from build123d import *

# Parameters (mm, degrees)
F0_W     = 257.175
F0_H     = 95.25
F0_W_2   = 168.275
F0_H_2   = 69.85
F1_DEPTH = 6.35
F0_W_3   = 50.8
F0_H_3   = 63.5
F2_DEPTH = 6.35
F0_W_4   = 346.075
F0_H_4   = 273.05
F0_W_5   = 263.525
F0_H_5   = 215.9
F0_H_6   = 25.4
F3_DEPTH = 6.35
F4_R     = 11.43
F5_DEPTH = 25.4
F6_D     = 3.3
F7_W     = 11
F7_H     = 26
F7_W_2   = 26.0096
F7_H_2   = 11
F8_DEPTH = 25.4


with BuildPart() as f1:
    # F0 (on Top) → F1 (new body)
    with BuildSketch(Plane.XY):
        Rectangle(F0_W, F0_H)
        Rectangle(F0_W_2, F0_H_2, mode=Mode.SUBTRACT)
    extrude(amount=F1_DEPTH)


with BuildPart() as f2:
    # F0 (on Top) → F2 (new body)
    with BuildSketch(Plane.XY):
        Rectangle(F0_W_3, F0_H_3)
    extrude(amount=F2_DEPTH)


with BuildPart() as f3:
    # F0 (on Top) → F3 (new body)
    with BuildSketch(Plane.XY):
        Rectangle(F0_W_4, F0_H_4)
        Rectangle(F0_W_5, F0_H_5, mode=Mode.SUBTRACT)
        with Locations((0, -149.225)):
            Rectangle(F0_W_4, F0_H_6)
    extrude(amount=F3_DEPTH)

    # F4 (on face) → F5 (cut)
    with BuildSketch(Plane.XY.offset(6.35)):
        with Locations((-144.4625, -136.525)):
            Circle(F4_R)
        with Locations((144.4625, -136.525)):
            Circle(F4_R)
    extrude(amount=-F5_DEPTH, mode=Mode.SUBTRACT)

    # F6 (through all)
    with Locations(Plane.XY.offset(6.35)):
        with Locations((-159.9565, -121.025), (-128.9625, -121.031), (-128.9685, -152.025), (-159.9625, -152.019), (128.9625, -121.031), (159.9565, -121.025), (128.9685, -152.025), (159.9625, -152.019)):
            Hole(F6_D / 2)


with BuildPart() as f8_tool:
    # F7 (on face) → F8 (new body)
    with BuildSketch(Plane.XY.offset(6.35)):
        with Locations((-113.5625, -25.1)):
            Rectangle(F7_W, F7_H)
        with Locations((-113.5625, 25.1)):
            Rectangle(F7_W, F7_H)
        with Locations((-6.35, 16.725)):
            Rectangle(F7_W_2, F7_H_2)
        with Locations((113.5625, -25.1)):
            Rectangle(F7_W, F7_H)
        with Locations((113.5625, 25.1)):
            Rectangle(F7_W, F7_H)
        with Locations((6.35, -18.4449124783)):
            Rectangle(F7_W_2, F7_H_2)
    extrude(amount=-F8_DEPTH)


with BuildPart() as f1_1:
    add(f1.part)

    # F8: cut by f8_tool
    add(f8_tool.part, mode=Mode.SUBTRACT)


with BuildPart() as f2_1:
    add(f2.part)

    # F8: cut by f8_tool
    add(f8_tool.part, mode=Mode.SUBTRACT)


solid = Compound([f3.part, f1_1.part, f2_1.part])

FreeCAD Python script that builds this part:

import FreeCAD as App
import Part
import Sketcher
from FreeCAD import Vector
Q = App.Units.Quantity

doc = App.newDocument("Part")
params = doc.addObject("Spreadsheet::Sheet", "Params")
for row, (alias, value) in enumerate([
    ("sketch1_height", "3.75 in"),
    ("sketch1_height2", "2.75 in"),
    ("sketch1_width", "10.125 in"),
    ("sketch1_width2", "6.625 in"),
    ("pad1_length", "0.25 in"),
    ("sketch2_width", "2 in"),
    ("sketch2_height", "2.5 in"),
    ("pad2_length", "0.25 in"),
    ("sketch3_height", "8.5 in"),
    ("sketch3_height2", "11.75 in"),
    ("sketch3_width", "13.625 in"),
    ("pad3_length", "0.25 in"),
    ("sketch4_diameter", "0.9 in"),
    ("pocket1_length", "1 in"),
    ("hole_diameter", "3.3 mm"),
    ("sketch6_width", "1.024 in"),
    ("pad4_length", "1 in"),
], start=1):
    params.set(f"A{row}", alias)
    params.set(f"B{row}", "=" + value)
    params.setAlias(f"B{row}", alias)

body = doc.addObject("PartDesign::Body", "Body")

# Sketch on XY plane
sketch1 = doc.addObject("Sketcher::SketchObject", "Sketch")
body.addObject(sketch1)
sketch1.AttachmentSupport = (doc.XY_Plane, [""])
sketch1.MapMode = "FlatFace"
sketch1.addGeometry([
    Part.LineSegment(Vector(-129, 48, 0), Vector(-129, -48, 0)),  # 0
    Part.LineSegment(Vector(-129, -48, 0), Vector(129, -48, 0)),  # 1
    Part.LineSegment(Vector(129, -48, 0), Vector(129, 48, 0)),  # 2
    Part.LineSegment(Vector(129, 48, 0), Vector(-129, 48, 0)),  # 3
    Part.LineSegment(Vector(84, -35, 0), Vector(-84, -35, 0)),  # 4
    Part.LineSegment(Vector(-84, -35, 0), Vector(-84, 35, 0)),  # 5
    Part.LineSegment(Vector(-84, 35, 0), Vector(84, 35, 0)),  # 6
    Part.LineSegment(Vector(84, 35, 0), Vector(84, -35, 0)),  # 7
], False)
sketch1.addConstraint([
    Sketcher.Constraint("Coincident", 0, 2, 1, 1),
    Sketcher.Constraint("Coincident", 1, 2, 2, 1),
    Sketcher.Constraint("Coincident", 2, 2, 3, 1),
    Sketcher.Constraint("Coincident", 3, 2, 0, 1),
    Sketcher.Constraint("Coincident", 4, 2, 5, 1),
    Sketcher.Constraint("Coincident", 5, 2, 6, 1),
    Sketcher.Constraint("Coincident", 6, 2, 7, 1),
    Sketcher.Constraint("Coincident", 7, 2, 4, 1),
    Sketcher.Constraint("Vertical", 0),
    Sketcher.Constraint("Horizontal", 1),
    Sketcher.Constraint("Vertical", 2),
    Sketcher.Constraint("Horizontal", 3),
    Sketcher.Constraint("Horizontal", 4),
    Sketcher.Constraint("Vertical", 5),
    Sketcher.Constraint("Horizontal", 6),
    Sketcher.Constraint("Vertical", 7),
    Sketcher.Constraint("Symmetric", 0, 2, 2, 2, -1, 1),
    Sketcher.Constraint("Symmetric", 4, 2, 6, 2, -1, 1),
    Sketcher.Constraint("DistanceY", 0, 2, 0, 1, Q("3.75 in")),
    Sketcher.Constraint("DistanceY", 5, 1, 5, 2, Q("2.75 in")),
    Sketcher.Constraint("DistanceX", 1, 1, 1, 2, Q("10.125 in")),
    Sketcher.Constraint("DistanceX", 4, 2, 4, 1, Q("6.625 in")),
])
sketch1.setExpression("Constraints[18]", "Params.sketch1_height")
sketch1.setExpression("Constraints[19]", "Params.sketch1_height2")
sketch1.setExpression("Constraints[20]", "Params.sketch1_width")
sketch1.setExpression("Constraints[21]", "Params.sketch1_width2")
pad1 = doc.addObject("PartDesign::Pad", "Pad")
body.addObject(pad1)
pad1.Profile = sketch1
pad1.setExpression("Length", "Params.pad1_length")
body2 = doc.addObject("PartDesign::Body", "Body001")

# Sketch on XY plane
sketch2 = doc.addObject("Sketcher::SketchObject", "Sketch001")
body2.addObject(sketch2)
sketch2.AttachmentSupport = (doc.getObject("XY_Plane001"), [""])
sketch2.MapMode = "FlatFace"
sketch2.addGeometry([
    Part.LineSegment(Vector(-25, 32, 0), Vector(-25, -32, 0)),
    Part.LineSegment(Vector(-25, -32, 0), Vector(25, -32, 0)),
    Part.LineSegment(Vector(25, -32, 0), Vector(25, 32, 0)),
    Part.LineSegment(Vector(25, 32, 0), Vector(-25, 32, 0)),
], False)
sketch2.addConstraint([
    Sketcher.Constraint("Coincident", 0, 2, 1, 1),
    Sketcher.Constraint("Coincident", 1, 2, 2, 1),
    Sketcher.Constraint("Coincident", 2, 2, 3, 1),
    Sketcher.Constraint("Coincident", 3, 2, 0, 1),
    Sketcher.Constraint("Vertical", 0),
    Sketcher.Constraint("Horizontal", 1),
    Sketcher.Constraint("Vertical", 2),
    Sketcher.Constraint("Horizontal", 3),
    Sketcher.Constraint("Symmetric", 0, 2, 2, 2, -1, 1),
    Sketcher.Constraint("DistanceX", 1, 1, 1, 2, Q("2 in")),
    Sketcher.Constraint("DistanceY", 0, 2, 0, 1, Q("2.5 in")),
])
sketch2.setExpression("Constraints[9]", "Params.sketch2_width")
sketch2.setExpression("Constraints[10]", "Params.sketch2_height")
pad2 = doc.addObject("PartDesign::Pad", "Pad001")
body2.addObject(pad2)
pad2.Profile = sketch2
pad2.setExpression("Length", "Params.pad2_length")
body3 = doc.addObject("PartDesign::Body", "Body002")

# Sketch on XY plane
sketch3 = doc.addObject("Sketcher::SketchObject", "Sketch002")
body3.addObject(sketch3)
sketch3.AttachmentSupport = (doc.getObject("XY_Plane002"), [""])
sketch3.MapMode = "FlatFace"
sketch3.addGeometry([
    Part.LineSegment(Vector(-173, 137, 0), Vector(-173, -162, 0)),  # 0
    Part.LineSegment(Vector(-173, -162, 0), Vector(173, -162, 0)),  # 1
    Part.LineSegment(Vector(173, -162, 0), Vector(173, 137, 0)),  # 2
    Part.LineSegment(Vector(173, 137, 0), Vector(-173, 137, 0)),  # 3
    Part.LineSegment(Vector(132, -108, 0), Vector(-132, -108, 0)),  # 4
    Part.LineSegment(Vector(-132, -108, 0), Vector(-132, 108, 0)),  # 5
    Part.LineSegment(Vector(-132, 108, 0), Vector(132, 108, 0)),  # 6
    Part.LineSegment(Vector(132, 108, 0), Vector(132, -108, 0)),  # 7
], False)
sketch3.addConstraint([
    Sketcher.Constraint("Coincident", 0, 2, 1, 1),
    Sketcher.Constraint("Coincident", 1, 2, 2, 1),
    Sketcher.Constraint("Coincident", 2, 2, 3, 1),
    Sketcher.Constraint("Coincident", 3, 2, 0, 1),
    Sketcher.Constraint("Coincident", 4, 2, 5, 1),
    Sketcher.Constraint("Coincident", 5, 2, 6, 1),
    Sketcher.Constraint("Coincident", 6, 2, 7, 1),
    Sketcher.Constraint("Coincident", 7, 2, 4, 1),
    Sketcher.Constraint("Vertical", 0),
    Sketcher.Constraint("Horizontal", 1),
    Sketcher.Constraint("Vertical", 2),
    Sketcher.Constraint("Horizontal", 3),
    Sketcher.Constraint("Horizontal", 4),
    Sketcher.Constraint("Vertical", 5),
    Sketcher.Constraint("Horizontal", 6),
    Sketcher.Constraint("Vertical", 7),
    Sketcher.Constraint("Symmetric", 4, 2, 6, 2, -1, 1),
    Sketcher.Constraint("DistanceY", 5, 1, 5, 2, Q("8.5 in")),
    Sketcher.Constraint("DistanceX", 4, 2, 1, 2, Q("12 in")),
    Sketcher.Constraint("DistanceX", 3, 2, 6, 2, Q("12 in")),
    Sketcher.Constraint("DistanceY", 0, 2, 0, 1, Q("11.75 in")),
    Sketcher.Constraint("DistanceX", 1, 1, 1, 2, Q("13.625 in")),
    Sketcher.Constraint("DistanceY", 0, 2, -1, 1, Q("6.375 in")),
])
sketch3.setExpression("Constraints[17]", "Params.sketch3_height")
sketch3.setExpression("Constraints[20]", "Params.sketch3_height2")
sketch3.setExpression("Constraints[21]", "Params.sketch3_width")
pad3 = doc.addObject("PartDesign::Pad", "Pad002")
body3.addObject(pad3)
pad3.Profile = sketch3
pad3.setExpression("Length", "Params.pad3_length")

# Sketch on XY plane
sketch4 = doc.addObject("Sketcher::SketchObject", "Sketch003")
body3.addObject(sketch4)
sketch4.AttachmentSupport = (doc.getObject("XY_Plane002"), [""])
sketch4.MapMode = "FlatFace"
sketch4.AttachmentOffset = App.Placement(Vector(0, 0, 0.25 * 25.4), App.Rotation())
sketch4.addGeometry([
    Part.Circle(Vector(-144, -137, 0), Vector(0, 0, 1), 11),
    Part.Circle(Vector(144, -137, 0), Vector(0, 0, 1), 11),
], False)
sketch4.addConstraint([
    Sketcher.Constraint("Equal", 0, 1),
    Sketcher.Constraint("Symmetric", 0, 3, 1, 3, -2),
    Sketcher.Constraint("Diameter", 0, Q("0.9 in")),
    Sketcher.Constraint("DistanceX", 0, 3, -1, 1, Q("5.6875 in")),
    Sketcher.Constraint("DistanceY", 0, 3, -1, 1, Q("5.375 in")),
])
sketch4.setExpression("Constraints[2]", "Params.sketch4_diameter")
pocket1 = doc.addObject("PartDesign::Pocket", "Pocket")
body3.addObject(pocket1)
pocket1.Profile = sketch4
pocket1.setExpression("Length", "Params.pocket1_length")

# Sketch on XY plane
sketch5 = doc.addObject("Sketcher::SketchObject", "Sketch004")
body3.addObject(sketch5)
sketch5.AttachmentSupport = (doc.getObject("XY_Plane002"), [""])
sketch5.MapMode = "FlatFace"
sketch5.AttachmentOffset = App.Placement(Vector(0, 0, 0.25 * 25.4), App.Rotation())
sketch5.addGeometry([
    Part.Circle(Vector(-160, -121, 0), Vector(0, 0, 1), 1.6),  # 0
    Part.Circle(Vector(-129, -121, 0), Vector(0, 0, 1), 1.6),  # 1
    Part.Circle(Vector(-129, -152, 0), Vector(0, 0, 1), 1.6),  # 2
    Part.Circle(Vector(-160, -152, 0), Vector(0, 0, 1), 1.6),  # 3
    Part.Circle(Vector(129, -121, 0), Vector(0, 0, 1), 1.6),  # 4
    Part.Circle(Vector(160, -121, 0), Vector(0, 0, 1), 1.6),  # 5
    Part.Circle(Vector(129, -152, 0), Vector(0, 0, 1), 1.6),  # 6
    Part.Circle(Vector(160, -152, 0), Vector(0, 0, 1), 1.6),  # 7
], False)
sketch5.addConstraint([
    Sketcher.Constraint("Equal", 0, 1),
    Sketcher.Constraint("Equal", 1, 2),
    Sketcher.Constraint("Equal", 2, 3),
    Sketcher.Constraint("Equal", 3, 4),
    Sketcher.Constraint("Equal", 4, 5),
    Sketcher.Constraint("Equal", 5, 6),
    Sketcher.Constraint("Equal", 6, 7),
    Sketcher.Constraint("Symmetric", 1, 3, 4, 3, -2),
    Sketcher.Constraint("Symmetric", 0, 3, 5, 3, -2),
    Sketcher.Constraint("Symmetric", 2, 3, 6, 3, -2),
    Sketcher.Constraint("Symmetric", 3, 3, 7, 3, -2),
    Sketcher.Constraint("Diameter", 0, Q("3.3 mm")),
    Sketcher.Constraint("DistanceX", 0, 3, 2, 3, Q("1.22 in")),
    Sketcher.Constraint("DistanceY", 3, 3, 1, 3, Q("1.22 in")),
    Sketcher.Constraint("DistanceY", 1, 3, -1, 1, Q("4.765 in")),
    Sketcher.Constraint("DistanceX", 3, 3, 4, 3, Q("11.375 in")),
    Sketcher.Constraint("DistanceX", 2, 3, 5, 3, Q("11.375 in")),
    Sketcher.Constraint("DistanceY", 0, 3, -1, 1, Q("121.025 mm")),
    Sketcher.Constraint("DistanceX", 1, 3, -1, 1, Q("128.9625 mm")),
    Sketcher.Constraint("DistanceY", 2, 3, -1, 1, Q("152.025 mm")),
])
doc.recompute()
hole = doc.addObject("PartDesign::Hole", "Hole")
body3.addObject(hole)
hole.Profile = sketch5
hole.ThreadType = "None"
hole.setExpression("Diameter", "Params.hole_diameter")
hole.DepthType = "ThroughAll"
body4 = doc.addObject("PartDesign::Body", "Body003")
body4.AllowCompound = True

# Sketch on XY plane
sketch6 = doc.addObject("Sketcher::SketchObject", "Sketch005")
body4.addObject(sketch6)
sketch6.AttachmentSupport = (doc.getObject("XY_Plane003"), [""])
sketch6.MapMode = "FlatFace"
sketch6.AttachmentOffset = App.Placement(Vector(0, 0, 0.25 * 25.4), App.Rotation())
sketch6.addGeometry([
    Part.LineSegment(Vector(-119, -12, 0), Vector(-119, -38, 0)),  # 0
    Part.LineSegment(Vector(-119, -38, 0), Vector(-108, -38, 0)),  # 1
    Part.LineSegment(Vector(-108, -38, 0), Vector(-108, -12, 0)),  # 2
    Part.LineSegment(Vector(-108, -12, 0), Vector(-119, -12, 0)),  # 3
    Part.LineSegment(Vector(-119, 38, 0), Vector(-119, 12, 0)),  # 4
    Part.LineSegment(Vector(-119, 12, 0), Vector(-108, 12, 0)),  # 5
    Part.LineSegment(Vector(-108, 12, 0), Vector(-108, 38, 0)),  # 6
    Part.LineSegment(Vector(-108, 38, 0), Vector(-119, 38, 0)),  # 7
    Part.LineSegment(Vector(-19, 22, 0), Vector(-19, 11, 0)),  # 8
    Part.LineSegment(Vector(-19, 11, 0), Vector(7, 11, 0)),  # 9
    Part.LineSegment(Vector(7, 11, 0), Vector(7, 22, 0)),  # 10
    Part.LineSegment(Vector(7, 22, 0), Vector(-19, 22, 0)),  # 11
    Part.LineSegment(Vector(108, -12, 0), Vector(108, -38, 0)),  # 12
    Part.LineSegment(Vector(108, -38, 0), Vector(119, -38, 0)),  # 13
    Part.LineSegment(Vector(119, -38, 0), Vector(119, -12, 0)),  # 14
    Part.LineSegment(Vector(119, -12, 0), Vector(108, -12, 0)),  # 15
    Part.LineSegment(Vector(108, 38, 0), Vector(108, 12, 0)),  # 16
    Part.LineSegment(Vector(108, 12, 0), Vector(119, 12, 0)),  # 17
    Part.LineSegment(Vector(119, 12, 0), Vector(119, 38, 0)),  # 18
    Part.LineSegment(Vector(119, 38, 0), Vector(108, 38, 0)),  # 19
    Part.LineSegment(Vector(-7, -13, 0), Vector(-7, -24, 0)),  # 20
    Part.LineSegment(Vector(-7, -24, 0), Vector(19, -24, 0)),  # 21
    Part.LineSegment(Vector(19, -24, 0), Vector(19, -13, 0)),  # 22
    Part.LineSegment(Vector(19, -13, 0), Vector(-7, -13, 0)),  # 23
], False)
sketch6.addConstraint([
    Sketcher.Constraint("Coincident", 0, 2, 1, 1),
    Sketcher.Constraint("Coincident", 1, 2, 2, 1),
    Sketcher.Constraint("Coincident", 2, 2, 3, 1),
    Sketcher.Constraint("Coincident", 3, 2, 0, 1),
    Sketcher.Constraint("Coincident", 4, 2, 5, 1),
    Sketcher.Constraint("Coincident", 5, 2, 6, 1),
    Sketcher.Constraint("Coincident", 6, 2, 7, 1),
    Sketcher.Constraint("Coincident", 7, 2, 4, 1),
    Sketcher.Constraint("Coincident", 8, 2, 9, 1),
    Sketcher.Constraint("Coincident", 9, 2, 10, 1),
    Sketcher.Constraint("Coincident", 10, 2, 11, 1),
    Sketcher.Constraint("Coincident", 11, 2, 8, 1),
    Sketcher.Constraint("Coincident", 12, 2, 13, 1),
    Sketcher.Constraint("Coincident", 13, 2, 14, 1),
    Sketcher.Constraint("Coincident", 14, 2, 15, 1),
    Sketcher.Constraint("Coincident", 15, 2, 12, 1),
    Sketcher.Constraint("Coincident", 16, 2, 17, 1),
    Sketcher.Constraint("Coincident", 17, 2, 18, 1),
    Sketcher.Constraint("Coincident", 18, 2, 19, 1),
    Sketcher.Constraint("Coincident", 19, 2, 16, 1),
    Sketcher.Constraint("Coincident", 20, 2, 21, 1),
    Sketcher.Constraint("Coincident", 21, 2, 22, 1),
    Sketcher.Constraint("Coincident", 22, 2, 23, 1),
    Sketcher.Constraint("Coincident", 23, 2, 20, 1),
    Sketcher.Constraint("Vertical", 0),
    Sketcher.Constraint("Horizontal", 1),
    Sketcher.Constraint("Vertical", 2),
    Sketcher.Constraint("Horizontal", 3),
    Sketcher.Constraint("Vertical", 4),
    Sketcher.Constraint("Horizontal", 5),
    Sketcher.Constraint("Vertical", 6),
    Sketcher.Constraint("Horizontal", 7),
    Sketcher.Constraint("Vertical", 8),
    Sketcher.Constraint("Horizontal", 9),
    Sketcher.Constraint("Vertical", 10),
    Sketcher.Constraint("Horizontal", 11),
    Sketcher.Constraint("Vertical", 12),
    Sketcher.Constraint("Horizontal", 13),
    Sketcher.Constraint("Vertical", 14),
    Sketcher.Constraint("Horizontal", 15),
    Sketcher.Constraint("Vertical", 16),
    Sketcher.Constraint("Horizontal", 17),
    Sketcher.Constraint("Vertical", 18),
    Sketcher.Constraint("Horizontal", 19),
    Sketcher.Constraint("Vertical", 20),
    Sketcher.Constraint("Horizontal", 21),
    Sketcher.Constraint("Vertical", 22),
    Sketcher.Constraint("Horizontal", 23),
    Sketcher.Constraint("Symmetric", 6, 2, 12, 2, -1, 1),
    Sketcher.Constraint("Symmetric", 4, 2, 14, 2, -1, 1),
    Sketcher.Constraint("Symmetric", 2, 2, 16, 2, -1, 1),
    Sketcher.Constraint("Symmetric", 0, 2, 18, 2, -1, 1),
    Sketcher.Constraint("Symmetric", 1, 2, 12, 2, -2),
    Sketcher.Constraint("Symmetric", 3, 2, 14, 2, -2),
    Sketcher.Constraint("Equal", 11, 21),
    Sketcher.Constraint("Equal", 19, 8),
    Sketcher.Constraint("Equal", 10, 20),
    Sketcher.Constraint("DistanceY", 1, 2, 6, 2, Q("3 in")),
    Sketcher.Constraint("DistanceX", 8, 2, 20, 2, Q("0.5 in")),
    Sketcher.Constraint("DistanceX", 9, 1, 9, 2, Q("1.024 in")),
    Sketcher.Constraint("DistanceX", 0, 2, -1, 1, Q("4.6875 in")),
    Sketcher.Constraint("DistanceX", 8, 2, -1, 1, Q("0.762 in")),
    Sketcher.Constraint("DistanceY", -1, 1, 10, 2, Q("0.875 in")),
    Sketcher.Constraint("DistanceX", 1, 1, 1, 2, Q("11 mm")),
    Sketcher.Constraint("DistanceY", 0, 2, 0, 1, Q("26 mm")),
    Sketcher.Constraint("DistanceY", 20, 2, -1, 1, Q("23.944912 mm")),
])
sketch6.setExpression("Constraints[59]", "Params.sketch6_width")
pad4 = doc.addObject("PartDesign::Pad", "Pad003")
body4.addObject(pad4)
pad4.Profile = sketch6
pad4.setExpression("Length", "Params.pad4_length")
pad4.Reversed = True
doc.recompute()

body5 = doc.addObject("PartDesign::Body", "Body004")
body5.BaseFeature = body4
boolean = doc.addObject("PartDesign::Boolean", "Boolean")
body.addObject(boolean)
boolean.Type = "Cut"
boolean.addObjects([body5])
doc.recompute()

boolean2 = doc.addObject("PartDesign::Boolean", "Boolean001")
body2.addObject(boolean2)
boolean2.Type = "Cut"
boolean2.addObjects([body4])

doc.recompute()
